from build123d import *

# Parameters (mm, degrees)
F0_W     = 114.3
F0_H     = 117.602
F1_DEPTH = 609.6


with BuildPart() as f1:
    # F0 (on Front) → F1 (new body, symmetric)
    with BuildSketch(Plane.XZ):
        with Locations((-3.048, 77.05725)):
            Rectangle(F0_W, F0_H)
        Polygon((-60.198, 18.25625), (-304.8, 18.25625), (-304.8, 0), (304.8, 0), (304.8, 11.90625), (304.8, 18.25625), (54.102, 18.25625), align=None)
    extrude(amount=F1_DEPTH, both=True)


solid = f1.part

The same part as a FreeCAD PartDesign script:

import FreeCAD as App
import Part
import Sketcher

V = App.Vector
Q = App.Units.Quantity

doc = App.newDocument("Part")
body = doc.addObject("PartDesign::Body", "Body")

sketch1 = body.newObject("Sketcher::SketchObject", "Sketch")
sketch1.AttachmentSupport = (doc.getObject("XZ_Plane"), [""])
sketch1.MapMode = "FlatFace"
sketch1.addGeometry([
    Part.LineSegment(V(-60.198, 135.85825, 0), V(-60.198, 18.25625, 0)),
    Part.LineSegment(V(-60.198, 18.25625, 0), V(-304.8, 18.25625, 0)),
    Part.LineSegment(V(-304.8, 18.25625, 0), V(-304.8, 0, 0)),
    Part.LineSegment(V(-304.8, 0, 0), V(304.8, 0, 0)),
    Part.LineSegment(V(304.8, 0, 0), V(304.8, 18.25625, 0)),
    Part.LineSegment(V(304.8, 18.25625, 0), V(54.102, 18.25625, 0)),
    Part.LineSegment(V(54.102, 18.25625, 0), V(54.102, 135.85825, 0)),
    Part.LineSegment(V(54.102, 135.85825, 0), V(-60.198, 135.85825, 0)),
], False)
sketch1.addConstraint([
    Sketcher.Constraint("Coincident", 0, 2, 1, 1),
    Sketcher.Constraint("Coincident", 1, 2, 2, 1),
    Sketcher.Constraint("Coincident", 2, 2, 3, 1),
    Sketcher.Constraint("Coincident", 3, 2, 4, 1),
    Sketcher.Constraint("Coincident", 4, 2, 5, 1),
    Sketcher.Constraint("Coincident", 5, 2, 6, 1),
    Sketcher.Constraint("Coincident", 6, 2, 7, 1),
    Sketcher.Constraint("Coincident", 7, 2, 0, 1),
    Sketcher.Constraint("Vertical", 0),
    Sketcher.Constraint("Horizontal", 1),
    Sketcher.Constraint("Vertical", 2),
    Sketcher.Constraint("Horizontal", 3),
    Sketcher.Constraint("Vertical", 4),
    Sketcher.Constraint("Horizontal", 5),
    Sketcher.Constraint("Vertical", 6),
    Sketcher.Constraint("Horizontal", 7),
    Sketcher.Constraint("Symmetric", 2, 2, 3, 2, -1, 1),
    Sketcher.Constraint("Horizontal", 1, 2, 4, 2),
    Sketcher.Constraint("DistanceX", 3, 1, 3, 2, Q("24 in")),
    Sketcher.Constraint("DistanceX", 7, 2, 7, 1, Q("4.5 in")),
    Sketcher.Constraint("DistanceX", 1, 2, 1, 1, Q("9.63 in")),
    Sketcher.Constraint("DistanceY", 0, 2, 0, 1, Q("4.63 in")),
    Sketcher.Constraint("DistanceY", 2, 2, 2, 1, Q("0.71875 in")),
])
pad1 = body.newObject("PartDesign::Pad", "Pad")
pad1.Profile = sketch1
pad1.Length = Q("48 in")
pad1.Midplane = True

doc.recompute()
